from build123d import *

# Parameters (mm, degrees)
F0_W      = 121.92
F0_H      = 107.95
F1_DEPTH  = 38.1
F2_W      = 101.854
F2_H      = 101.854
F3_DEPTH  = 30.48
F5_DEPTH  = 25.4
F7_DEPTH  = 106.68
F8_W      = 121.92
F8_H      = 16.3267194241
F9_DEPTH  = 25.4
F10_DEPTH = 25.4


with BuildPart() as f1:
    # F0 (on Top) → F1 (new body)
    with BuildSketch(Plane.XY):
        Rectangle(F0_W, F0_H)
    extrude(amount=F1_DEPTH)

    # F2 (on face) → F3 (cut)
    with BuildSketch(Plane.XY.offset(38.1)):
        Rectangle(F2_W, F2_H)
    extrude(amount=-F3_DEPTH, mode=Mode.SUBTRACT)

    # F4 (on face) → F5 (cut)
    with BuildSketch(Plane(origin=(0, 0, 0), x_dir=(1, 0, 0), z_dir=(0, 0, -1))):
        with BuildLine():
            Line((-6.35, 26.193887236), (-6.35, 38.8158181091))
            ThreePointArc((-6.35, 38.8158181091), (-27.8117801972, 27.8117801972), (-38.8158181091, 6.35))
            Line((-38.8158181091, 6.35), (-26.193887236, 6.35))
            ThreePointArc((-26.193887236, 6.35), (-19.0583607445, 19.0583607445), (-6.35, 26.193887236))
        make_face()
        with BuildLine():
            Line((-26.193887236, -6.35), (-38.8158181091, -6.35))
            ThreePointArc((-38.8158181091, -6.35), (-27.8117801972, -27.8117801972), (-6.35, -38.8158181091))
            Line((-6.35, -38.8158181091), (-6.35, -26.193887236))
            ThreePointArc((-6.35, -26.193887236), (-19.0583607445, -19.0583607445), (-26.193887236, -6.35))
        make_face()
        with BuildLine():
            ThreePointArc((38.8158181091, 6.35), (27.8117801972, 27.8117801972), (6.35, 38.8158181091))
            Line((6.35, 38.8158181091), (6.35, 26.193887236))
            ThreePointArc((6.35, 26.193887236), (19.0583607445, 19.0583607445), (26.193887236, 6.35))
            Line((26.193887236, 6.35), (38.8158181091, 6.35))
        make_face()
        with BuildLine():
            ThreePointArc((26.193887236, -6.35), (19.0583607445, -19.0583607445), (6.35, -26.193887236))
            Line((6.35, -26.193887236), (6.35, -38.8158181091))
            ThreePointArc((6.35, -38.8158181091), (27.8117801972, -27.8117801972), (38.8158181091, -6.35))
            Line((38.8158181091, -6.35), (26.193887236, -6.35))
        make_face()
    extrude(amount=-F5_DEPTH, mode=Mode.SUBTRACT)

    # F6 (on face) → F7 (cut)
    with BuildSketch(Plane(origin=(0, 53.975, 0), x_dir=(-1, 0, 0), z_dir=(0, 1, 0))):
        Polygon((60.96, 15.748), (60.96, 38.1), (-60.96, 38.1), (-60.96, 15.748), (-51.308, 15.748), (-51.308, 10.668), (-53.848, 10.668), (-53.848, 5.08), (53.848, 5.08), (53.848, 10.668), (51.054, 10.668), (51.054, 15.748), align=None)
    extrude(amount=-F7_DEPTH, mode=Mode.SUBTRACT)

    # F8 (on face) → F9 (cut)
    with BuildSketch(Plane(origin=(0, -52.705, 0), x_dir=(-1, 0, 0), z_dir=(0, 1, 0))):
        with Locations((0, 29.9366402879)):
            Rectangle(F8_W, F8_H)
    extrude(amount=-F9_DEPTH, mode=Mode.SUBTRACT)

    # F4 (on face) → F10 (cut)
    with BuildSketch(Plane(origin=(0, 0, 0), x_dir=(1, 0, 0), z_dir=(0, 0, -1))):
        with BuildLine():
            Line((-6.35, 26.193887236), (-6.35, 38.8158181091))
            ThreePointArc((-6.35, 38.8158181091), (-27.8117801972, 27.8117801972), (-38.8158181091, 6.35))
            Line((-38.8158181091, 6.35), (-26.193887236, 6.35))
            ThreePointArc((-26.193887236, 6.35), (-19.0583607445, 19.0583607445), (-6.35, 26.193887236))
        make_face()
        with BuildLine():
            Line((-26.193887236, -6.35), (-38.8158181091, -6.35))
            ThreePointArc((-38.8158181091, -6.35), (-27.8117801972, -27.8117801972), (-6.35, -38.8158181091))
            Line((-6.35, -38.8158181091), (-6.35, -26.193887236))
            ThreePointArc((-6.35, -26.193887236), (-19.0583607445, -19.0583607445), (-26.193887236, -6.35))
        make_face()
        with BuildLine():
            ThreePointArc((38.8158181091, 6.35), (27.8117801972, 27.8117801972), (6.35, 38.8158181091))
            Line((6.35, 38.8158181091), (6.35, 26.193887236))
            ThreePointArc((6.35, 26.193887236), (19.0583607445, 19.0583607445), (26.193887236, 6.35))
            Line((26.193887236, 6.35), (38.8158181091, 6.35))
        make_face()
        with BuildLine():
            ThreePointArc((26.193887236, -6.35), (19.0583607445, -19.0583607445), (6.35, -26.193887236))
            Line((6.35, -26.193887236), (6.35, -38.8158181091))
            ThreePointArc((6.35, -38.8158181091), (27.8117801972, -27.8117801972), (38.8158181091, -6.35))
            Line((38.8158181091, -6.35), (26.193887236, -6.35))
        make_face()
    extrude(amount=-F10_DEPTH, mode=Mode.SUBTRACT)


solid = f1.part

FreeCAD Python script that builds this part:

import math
import FreeCAD as App
import Part
import Sketcher
Q = App.Units.Quantity


def add_polygon(sketch, points):
    """Adds a closed chain of lines whose ends are joined by coincident constraints."""
    first, n = sketch.GeometryCount, len(points)
    for a, b in zip(points, points[1:] + points[:1]):
        sketch.addGeometry(Part.LineSegment(App.Vector(*a, 0), App.Vector(*b, 0)), False)
    for i in range(n):
        sketch.addConstraint(Sketcher.Constraint("Coincident", first + i, 2, first + (i + 1) % n, 1))

doc = App.newDocument("Part")
params = doc.addObject("Spreadsheet::Sheet", "Params")
for row, (alias, value) in enumerate([
    ("sketch1_width", "4.8 in"),
    ("sketch1_height", "4.25 in"),
    ("pad1_length", "1.5 in"),
    ("sketch2_width", "4.01 in"),
    ("pocket1_length", "1.2 in"),
    ("pocket2_length", "1 in"),
    ("sketch4_width", "4.8 in"),
    ("sketch4_width2", "0.1 in"),
    ("sketch4_height", "0.2 in"),
    ("sketch4_width3", "0.38 in"),
    ("sketch4_width4", "0.11 in"),
    ("pocket3_length", "4.2 in"),
    ("sketch5_width", "4.8 in"),
    ("pocket4_length", "1 in"),
    ("pocket5_length", "1 in"),
], start=1):
    params.set(f"A{row}", alias)
    params.set(f"B{row}", "=" + value)
    params.setAlias(f"B{row}", alias)

body = doc.addObject("PartDesign::Body", "Body")

# Sketch on XY plane
sketch1 = body.newObject("Sketcher::SketchObject", "Sketch")
sketch1.AttachmentSupport = (doc.getObject("XY_Plane"), [""])
sketch1.MapMode = "FlatFace"
add_polygon(sketch1, [(-61, 54), (-61, -54), (61, -54), (61, 54)])  # lines 0-3
sketch1.addConstraint([
    Sketcher.Constraint("Vertical", 0),
    Sketcher.Constraint("Horizontal", 1),
    Sketcher.Constraint("Vertical", 2),
    Sketcher.Constraint("Horizontal", 3),
    Sketcher.Constraint("Symmetric", 0, 2, 2, 2, -1, 1),
    Sketcher.Constraint("DistanceX", 1, 1, 1, 2, Q("4.8 in")),
    Sketcher.Constraint("DistanceY", 0, 2, 0, 1, Q("4.25 in")),
])
sketch1.setExpression("Constraints[9]", "Params.sketch1_width")
sketch1.setExpression("Constraints[10]", "Params.sketch1_height")
pad1 = body.newObject("PartDesign::Pad", "Pad")
pad1.Profile = sketch1
pad1.setExpression("Length", "Params.pad1_length")

# Sketch on XY plane
sketch2 = body.newObject("Sketcher::SketchObject", "Sketch001")
sketch2.AttachmentSupport = (doc.getObject("XY_Plane"), [""])
sketch2.MapMode = "FlatFace"
sketch2.AttachmentOffset = App.Placement(App.Vector(0, 0, 1.5 * 25.4), App.Rotation())
add_polygon(sketch2, [(-51, 51), (-51, -51), (51, -51), (51, 51)])  # lines 0-3
sketch2.addConstraint([
    Sketcher.Constraint("Vertical", 0),
    Sketcher.Constraint("Horizontal", 1),
    Sketcher.Constraint("Vertical", 2),
    Sketcher.Constraint("Horizontal", 3),
    Sketcher.Constraint("Symmetric", 0, 2, 2, 2, -1, 1),
    Sketcher.Constraint("Equal", 3, 0),
    Sketcher.Constraint("DistanceX", 1, 1, 1, 2, Q("4.01 in")),
])
sketch2.setExpression("Constraints[10]", "Params.sketch2_width")
pocket1 = body.newObject("PartDesign::Pocket", "Pocket")
pocket1.Profile = sketch2
pocket1.setExpression("Length", "Params.pocket1_length")

# Sketch on XY plane
sketch3 = body.newObject("Sketcher::SketchObject", "Sketch002")
sketch3.AttachmentSupport = (doc.getObject("XY_Plane"), [""])
sketch3.MapMode = "FlatFace"
sketch3.addGeometry([
    Part.LineSegment(App.Vector(-6, -26, 0), App.Vector(-6, -39, 0)),  # 0
    Part.ArcOfCircle(Part.Circle(App.Vector(0, 0, 0), App.Vector(0, 0, 1), 39), math.radians(-171), math.radians(-99)),  # 1
    Part.LineSegment(App.Vector(-39, -6, 0), App.Vector(-26, -6, 0)),  # 2
    Part.ArcOfCircle(Part.Circle(App.Vector(0, 0, 0), App.Vector(0, 0, 1), 27), math.radians(-166), math.radians(-104)),  # 3
    Part.LineSegment(App.Vector(-26, 6, 0), App.Vector(-39, 6, 0)),  # 4
    Part.ArcOfCircle(Part.Circle(App.Vector(0, 0, 0), App.Vector(0, 0, 1), 39), math.radians(99), math.radians(171)),  # 5
    Part.LineSegment(App.Vector(-6, 39, 0), App.Vector(-6, 26, 0)),  # 6
    Part.ArcOfCircle(Part.Circle(App.Vector(0, 0, 0), App.Vector(0, 0, 1), 27), math.radians(104), math.radians(166)),  # 7
    Part.ArcOfCircle(Part.Circle(App.Vector(0, 0, 0), App.Vector(0, 0, 1), 39), math.radians(-81), math.radians(-9)),  # 8
    Part.LineSegment(App.Vector(6, -39, 0), App.Vector(6, -26, 0)),  # 9
    Part.ArcOfCircle(Part.Circle(App.Vector(0, 0, 0), App.Vector(0, 0, 1), 27), math.radians(-76), math.radians(-14)),  # 10
    Part.LineSegment(App.Vector(26, -6, 0), App.Vector(39, -6, 0)),  # 11
    Part.ArcOfCircle(Part.Circle(App.Vector(0, 0, 0), App.Vector(0, 0, 1), 27), math.radians(14), math.radians(76)),  # 12
    Part.LineSegment(App.Vector(6, 26, 0), App.Vector(6, 39, 0)),  # 13
    Part.ArcOfCircle(Part.Circle(App.Vector(0, 0, 0), App.Vector(0, 0, 1), 39), math.radians(9), math.radians(81)),  # 14
    Part.LineSegment(App.Vector(39, 6, 0), App.Vector(26, 6, 0)),  # 15
], False)
sketch3.addConstraint([
    Sketcher.Constraint("Coincident", 0, 2, 1, 2),
    Sketcher.Constraint("Coincident", 1, 1, 2, 1),
    Sketcher.Constraint("Coincident", 2, 2, 3, 1),
    Sketcher.Constraint("Coincident", 3, 2, 0, 1),
    Sketcher.Constraint("Coincident", 4, 2, 5, 2),
    Sketcher.Constraint("Coincident", 5, 1, 6, 1),
    Sketcher.Constraint("Coincident", 6, 2, 7, 1),
    Sketcher.Constraint("Coincident", 7, 2, 4, 1),
    Sketcher.Constraint("Coincident", 8, 1, 9, 1),
    Sketcher.Constraint("Coincident", 9, 2, 10, 1),
    Sketcher.Constraint("Coincident", 10, 2, 11, 1),
    Sketcher.Constraint("Coincident", 11, 2, 8, 2),
    Sketcher.Constraint("Coincident", 12, 2, 13, 1),
    Sketcher.Constraint("Coincident", 13, 2, 14, 2),
    Sketcher.Constraint("Coincident", 14, 1, 15, 1),
    Sketcher.Constraint("Coincident", 15, 2, 12, 1),
    Sketcher.Constraint("Vertical", 0),
    Sketcher.Constraint("Horizontal", 2),
    Sketcher.Constraint("Horizontal", 4),
    Sketcher.Constraint("Vertical", 6),
    Sketcher.Constraint("Vertical", 9),
    Sketcher.Constraint("Horizontal", 11),
    Sketcher.Constraint("Vertical", 13),
    Sketcher.Constraint("Horizontal", 15),
    Sketcher.Constraint("Coincident", 1, 3, -1, 1),
    Sketcher.Constraint("Coincident", 3, 3, -1, 1),
    Sketcher.Constraint("Coincident", 5, 3, -1, 1),
    Sketcher.Constraint("Coincident", 7, 3, -1, 1),
    Sketcher.Constraint("Coincident", 8, 3, -1, 1),
    Sketcher.Constraint("Coincident", 10, 3, -1, 1),
    Sketcher.Constraint("Coincident", 12, 3, -1, 1),
    Sketcher.Constraint("Coincident", 14, 3, -1, 1),
    Sketcher.Constraint("Equal", 1, 5),
    Sketcher.Constraint("Equal", 3, 7),
    Sketcher.Constraint("Equal", 5, 8),
    Sketcher.Constraint("Equal", 7, 10),
    Sketcher.Constraint("Equal", 10, 12),
    Sketcher.Constraint("Equal", 8, 14),
    Sketcher.Constraint("Horizontal", 0, 2, 8, 1),
    Sketcher.Constraint("Horizontal", 2, 2, 10, 2),
    Sketcher.Constraint("Horizontal", 6, 2, 12, 2),
    Sketcher.Constraint("Horizontal", 7, 2, 14, 1),
    Sketcher.Constraint("Vertical", 1, 1, 4, 2),
    Sketcher.Constraint("Vertical", 3, 2, 5, 1),
    Sketcher.Constraint("Equal", 15, 0),
    Sketcher.Constraint("DistanceY", 1, 1, 4, 2, Q("0.5 in")),
    Sketcher.Constraint("Radius", 1, 39.331797),
    Sketcher.Constraint("Radius", 3, 26.952592),
])
pocket2 = body.newObject("PartDesign::Pocket", "Pocket001")
pocket2.Profile = sketch3
pocket2.setExpression("Length", "Params.pocket2_length")
pocket2.Reversed = True

# Sketch on XZ plane
sketch4 = body.newObject("Sketcher::SketchObject", "Sketch003")
sketch4.AttachmentSupport = (doc.getObject("XZ_Plane"), [""])
sketch4.MapMode = "FlatFace"
sketch4.AttachmentOffset = App.Placement(App.Vector(0, 0, -2.125 * 25.4), App.Rotation())
add_polygon(sketch4, [(-61, 15.7), (-61, 38.1), (61, 38.1), (61, 15.7), (51.3, 15.7), (51.3, 10.7), (53.8, 10.7), (53.8, 5.1), (-53.8, 5.1), (-53.8, 10.7), (-51.1, 10.7), (-51.1, 15.7)])  # lines 0-11
sketch4.addConstraint([
    Sketcher.Constraint("Vertical", 0),
    Sketcher.Constraint("Horizontal", 1),
    Sketcher.Constraint("Vertical", 2),
    Sketcher.Constraint("Horizontal", 3),
    Sketcher.Constraint("Vertical", 4),
    Sketcher.Constraint("Horizontal", 5),
    Sketcher.Constraint("Vertical", 6),
    Sketcher.Constraint("Horizontal", 7),
    Sketcher.Constraint("Vertical", 8),
    Sketcher.Constraint("Horizontal", 9),
    Sketcher.Constraint("Vertical", 10),
    Sketcher.Constraint("Horizontal", 11),
    Sketcher.Constraint("Symmetric", 5, 2, 8, 2, -2),
    Sketcher.Constraint("Symmetric", 2, 2, 11, 2, -2),
    Sketcher.Constraint("DistanceX", 1, 1, 1, 2, Q("4.8 in")),
    Sketcher.Constraint("DistanceX", 5, 1, 5, 2, Q("0.1 in")),
    Sketcher.Constraint("DistanceY", 4, 2, 4, 1, Q("0.2 in")),
    Sketcher.Constraint("DistanceX", 3, 2, 3, 1, Q("0.38 in")),
    Sketcher.Constraint("DistanceX", 9, 1, 9, 2, Q("0.11 in")),
    Sketcher.Constraint("DistanceY", 0, 1, 0, 2, Q("0.88 in")),
    Sketcher.Constraint("DistanceY", 6, 2, 6, 1, Q("0.22 in")),
    Sketcher.Constraint("DistanceY", -1, 1, 0, 2, Q("1.5 in")),
])
sketch4.setExpression("Constraints[26]", "Params.sketch4_width")
sketch4.setExpression("Constraints[27]", "Params.sketch4_width2")
sketch4.setExpression("Constraints[28]", "Params.sketch4_height")
sketch4.setExpression("Constraints[29]", "Params.sketch4_width3")
sketch4.setExpression("Constraints[30]", "Params.sketch4_width4")
pocket3 = body.newObject("PartDesign::Pocket", "Pocket002")
pocket3.Profile = sketch4
pocket3.setExpression("Length", "Params.pocket3_length")
pocket3.Reversed = True

# Sketch on XZ plane
sketch5 = body.newObject("Sketcher::SketchObject", "Sketch004")
sketch5.AttachmentSupport = (doc.getObject("XZ_Plane"), [""])
sketch5.MapMode = "FlatFace"
sketch5.AttachmentOffset = App.Placement(App.Vector(0, 0, 2.075 * 25.4), App.Rotation())
add_polygon(sketch5, [(61, 38), (61, 22), (-61, 22), (-61, 38)])  # lines 0-3
sketch5.addConstraint([
    Sketcher.Constraint("Vertical", 0),
    Sketcher.Constraint("Horizontal", 1),
    Sketcher.Constraint("Vertical", 2),
    Sketcher.Constraint("Horizontal", 3),
    Sketcher.Constraint("DistanceX", 1, 2, 1, 1, Q("4.8 in")),
    Sketcher.Constraint("DistanceX", -1, 1, 0, 2, Q("2.4 in")),
    Sketcher.Constraint("DistanceY", -1, 1, 2, 2, Q("1.5 in")),
    Sketcher.Constraint("DistanceY", 0, 2, 0, 1, 16.326719),
])
sketch5.setExpression("Constraints[8]", "Params.sketch5_width")
pocket4 = body.newObject("PartDesign::Pocket", "Pocket003")
pocket4.Profile = sketch5
pocket4.setExpression("Length", "Params.pocket4_length")
pocket4.Reversed = True

# Sketch on XY plane
sketch6 = body.newObject("Sketcher::SketchObject", "Sketch005")
sketch6.AttachmentSupport = (doc.getObject("XY_Plane"), [""])
sketch6.MapMode = "FlatFace"
sketch6.addGeometry([
    Part.LineSegment(App.Vector(-6, -26, 0), App.Vector(-6, -39, 0)),  # 0
    Part.ArcOfCircle(Part.Circle(App.Vector(0, 0, 0), App.Vector(0, 0, 1), 39), math.radians(-171), math.radians(-99)),  # 1
    Part.LineSegment(App.Vector(-39, -6, 0), App.Vector(-26, -6, 0)),  # 2
    Part.ArcOfCircle(Part.Circle(App.Vector(0, 0, 0), App.Vector(0, 0, 1), 27), math.radians(-166), math.radians(-104)),  # 3
    Part.LineSegment(App.Vector(-26, 6, 0), App.Vector(-39, 6, 0)),  # 4
    Part.ArcOfCircle(Part.Circle(App.Vector(0, 0, 0), App.Vector(0, 0, 1), 39), math.radians(99), math.radians(171)),  # 5
    Part.LineSegment(App.Vector(-6, 39, 0), App.Vector(-6, 26, 0)),  # 6
    Part.ArcOfCircle(Part.Circle(App.Vector(0, 0, 0), App.Vector(0, 0, 1), 27), math.radians(104), math.radians(166)),  # 7
    Part.ArcOfCircle(Part.Circle(App.Vector(0, 0, 0), App.Vector(0, 0, 1), 39), math.radians(-81), math.radians(-9)),  # 8
    Part.LineSegment(App.Vector(6, -39, 0), App.Vector(6, -26, 0)),  # 9
    Part.ArcOfCircle(Part.Circle(App.Vector(0, 0, 0), App.Vector(0, 0, 1), 27), math.radians(-76), math.radians(-14)),  # 10
    Part.LineSegment(App.Vector(26, -6, 0), App.Vector(39, -6, 0)),  # 11
    Part.ArcOfCircle(Part.Circle(App.Vector(0, 0, 0), App.Vector(0, 0, 1), 27), math.radians(14), math.radians(76)),  # 12
    Part.LineSegment(App.Vector(6, 26, 0), App.Vector(6, 39, 0)),  # 13
    Part.ArcOfCircle(Part.Circle(App.Vector(0, 0, 0), App.Vector(0, 0, 1), 39), math.radians(9), math.radians(81)),  # 14
    Part.LineSegment(App.Vector(39, 6, 0), App.Vector(26, 6, 0)),  # 15
], False)
sketch6.addConstraint([
    Sketcher.Constraint("Coincident", 0, 2, 1, 2),
    Sketcher.Constraint("Coincident", 1, 1, 2, 1),
    Sketcher.Constraint("Coincident", 2, 2, 3, 1),
    Sketcher.Constraint("Coincident", 3, 2, 0, 1),
    Sketcher.Constraint("Coincident", 4, 2, 5, 2),
    Sketcher.Constraint("Coincident", 5, 1, 6, 1),
    Sketcher.Constraint("Coincident", 6, 2, 7, 1),
    Sketcher.Constraint("Coincident", 7, 2, 4, 1),
    Sketcher.Constraint("Coincident", 8, 1, 9, 1),
    Sketcher.Constraint("Coincident", 9, 2, 10, 1),
    Sketcher.Constraint("Coincident", 10, 2, 11, 1),
    Sketcher.Constraint("Coincident", 11, 2, 8, 2),
    Sketcher.Constraint("Coincident", 12, 2, 13, 1),
    Sketcher.Constraint("Coincident", 13, 2, 14, 2),
    Sketcher.Constraint("Coincident", 14, 1, 15, 1),
    Sketcher.Constraint("Coincident", 15, 2, 12, 1),
    Sketcher.Constraint("Vertical", 0),
    Sketcher.Constraint("Horizontal", 2),
    Sketcher.Constraint("Horizontal", 4),
    Sketcher.Constraint("Vertical", 6),
    Sketcher.Constraint("Vertical", 9),
    Sketcher.Constraint("Horizontal", 11),
    Sketcher.Constraint("Vertical", 13),
    Sketcher.Constraint("Horizontal", 15),
    Sketcher.Constraint("Coincident", 1, 3, -1, 1),
    Sketcher.Constraint("Coincident", 3, 3, -1, 1),
    Sketcher.Constraint("Coincident", 5, 3, -1, 1),
    Sketcher.Constraint("Coincident", 7, 3, -1, 1),
    Sketcher.Constraint("Coincident", 8, 3, -1, 1),
    Sketcher.Constraint("Coincident", 10, 3, -1, 1),
    Sketcher.Constraint("Coincident", 12, 3, -1, 1),
    Sketcher.Constraint("Coincident", 14, 3, -1, 1),
    Sketcher.Constraint("Equal", 1, 5),
    Sketcher.Constraint("Equal", 3, 7),
    Sketcher.Constraint("Equal", 5, 8),
    Sketcher.Constraint("Equal", 7, 10),
    Sketcher.Constraint("Equal", 10, 12),
    Sketcher.Constraint("Equal", 8, 14),
    Sketcher.Constraint("Horizontal", 0, 2, 8, 1),
    Sketcher.Constraint("Horizontal", 2, 2, 10, 2),
    Sketcher.Constraint("Horizontal", 6, 2, 12, 2),
    Sketcher.Constraint("Horizontal", 7, 2, 14, 1),
    Sketcher.Constraint("Vertical", 1, 1, 4, 2),
    Sketcher.Constraint("Vertical", 3, 2, 5, 1),
    Sketcher.Constraint("Equal", 15, 0),
    Sketcher.Constraint("DistanceY", 1, 1, 4, 2, Q("0.5 in")),
    Sketcher.Constraint("Radius", 1, 39.331797),
    Sketcher.Constraint("Radius", 3, 26.952592),
])
pocket5 = body.newObject("PartDesign::Pocket", "Pocket004")
pocket5.Profile = sketch6
pocket5.setExpression("Length", "Params.pocket5_length")
pocket5.Reversed = True

doc.recompute()
